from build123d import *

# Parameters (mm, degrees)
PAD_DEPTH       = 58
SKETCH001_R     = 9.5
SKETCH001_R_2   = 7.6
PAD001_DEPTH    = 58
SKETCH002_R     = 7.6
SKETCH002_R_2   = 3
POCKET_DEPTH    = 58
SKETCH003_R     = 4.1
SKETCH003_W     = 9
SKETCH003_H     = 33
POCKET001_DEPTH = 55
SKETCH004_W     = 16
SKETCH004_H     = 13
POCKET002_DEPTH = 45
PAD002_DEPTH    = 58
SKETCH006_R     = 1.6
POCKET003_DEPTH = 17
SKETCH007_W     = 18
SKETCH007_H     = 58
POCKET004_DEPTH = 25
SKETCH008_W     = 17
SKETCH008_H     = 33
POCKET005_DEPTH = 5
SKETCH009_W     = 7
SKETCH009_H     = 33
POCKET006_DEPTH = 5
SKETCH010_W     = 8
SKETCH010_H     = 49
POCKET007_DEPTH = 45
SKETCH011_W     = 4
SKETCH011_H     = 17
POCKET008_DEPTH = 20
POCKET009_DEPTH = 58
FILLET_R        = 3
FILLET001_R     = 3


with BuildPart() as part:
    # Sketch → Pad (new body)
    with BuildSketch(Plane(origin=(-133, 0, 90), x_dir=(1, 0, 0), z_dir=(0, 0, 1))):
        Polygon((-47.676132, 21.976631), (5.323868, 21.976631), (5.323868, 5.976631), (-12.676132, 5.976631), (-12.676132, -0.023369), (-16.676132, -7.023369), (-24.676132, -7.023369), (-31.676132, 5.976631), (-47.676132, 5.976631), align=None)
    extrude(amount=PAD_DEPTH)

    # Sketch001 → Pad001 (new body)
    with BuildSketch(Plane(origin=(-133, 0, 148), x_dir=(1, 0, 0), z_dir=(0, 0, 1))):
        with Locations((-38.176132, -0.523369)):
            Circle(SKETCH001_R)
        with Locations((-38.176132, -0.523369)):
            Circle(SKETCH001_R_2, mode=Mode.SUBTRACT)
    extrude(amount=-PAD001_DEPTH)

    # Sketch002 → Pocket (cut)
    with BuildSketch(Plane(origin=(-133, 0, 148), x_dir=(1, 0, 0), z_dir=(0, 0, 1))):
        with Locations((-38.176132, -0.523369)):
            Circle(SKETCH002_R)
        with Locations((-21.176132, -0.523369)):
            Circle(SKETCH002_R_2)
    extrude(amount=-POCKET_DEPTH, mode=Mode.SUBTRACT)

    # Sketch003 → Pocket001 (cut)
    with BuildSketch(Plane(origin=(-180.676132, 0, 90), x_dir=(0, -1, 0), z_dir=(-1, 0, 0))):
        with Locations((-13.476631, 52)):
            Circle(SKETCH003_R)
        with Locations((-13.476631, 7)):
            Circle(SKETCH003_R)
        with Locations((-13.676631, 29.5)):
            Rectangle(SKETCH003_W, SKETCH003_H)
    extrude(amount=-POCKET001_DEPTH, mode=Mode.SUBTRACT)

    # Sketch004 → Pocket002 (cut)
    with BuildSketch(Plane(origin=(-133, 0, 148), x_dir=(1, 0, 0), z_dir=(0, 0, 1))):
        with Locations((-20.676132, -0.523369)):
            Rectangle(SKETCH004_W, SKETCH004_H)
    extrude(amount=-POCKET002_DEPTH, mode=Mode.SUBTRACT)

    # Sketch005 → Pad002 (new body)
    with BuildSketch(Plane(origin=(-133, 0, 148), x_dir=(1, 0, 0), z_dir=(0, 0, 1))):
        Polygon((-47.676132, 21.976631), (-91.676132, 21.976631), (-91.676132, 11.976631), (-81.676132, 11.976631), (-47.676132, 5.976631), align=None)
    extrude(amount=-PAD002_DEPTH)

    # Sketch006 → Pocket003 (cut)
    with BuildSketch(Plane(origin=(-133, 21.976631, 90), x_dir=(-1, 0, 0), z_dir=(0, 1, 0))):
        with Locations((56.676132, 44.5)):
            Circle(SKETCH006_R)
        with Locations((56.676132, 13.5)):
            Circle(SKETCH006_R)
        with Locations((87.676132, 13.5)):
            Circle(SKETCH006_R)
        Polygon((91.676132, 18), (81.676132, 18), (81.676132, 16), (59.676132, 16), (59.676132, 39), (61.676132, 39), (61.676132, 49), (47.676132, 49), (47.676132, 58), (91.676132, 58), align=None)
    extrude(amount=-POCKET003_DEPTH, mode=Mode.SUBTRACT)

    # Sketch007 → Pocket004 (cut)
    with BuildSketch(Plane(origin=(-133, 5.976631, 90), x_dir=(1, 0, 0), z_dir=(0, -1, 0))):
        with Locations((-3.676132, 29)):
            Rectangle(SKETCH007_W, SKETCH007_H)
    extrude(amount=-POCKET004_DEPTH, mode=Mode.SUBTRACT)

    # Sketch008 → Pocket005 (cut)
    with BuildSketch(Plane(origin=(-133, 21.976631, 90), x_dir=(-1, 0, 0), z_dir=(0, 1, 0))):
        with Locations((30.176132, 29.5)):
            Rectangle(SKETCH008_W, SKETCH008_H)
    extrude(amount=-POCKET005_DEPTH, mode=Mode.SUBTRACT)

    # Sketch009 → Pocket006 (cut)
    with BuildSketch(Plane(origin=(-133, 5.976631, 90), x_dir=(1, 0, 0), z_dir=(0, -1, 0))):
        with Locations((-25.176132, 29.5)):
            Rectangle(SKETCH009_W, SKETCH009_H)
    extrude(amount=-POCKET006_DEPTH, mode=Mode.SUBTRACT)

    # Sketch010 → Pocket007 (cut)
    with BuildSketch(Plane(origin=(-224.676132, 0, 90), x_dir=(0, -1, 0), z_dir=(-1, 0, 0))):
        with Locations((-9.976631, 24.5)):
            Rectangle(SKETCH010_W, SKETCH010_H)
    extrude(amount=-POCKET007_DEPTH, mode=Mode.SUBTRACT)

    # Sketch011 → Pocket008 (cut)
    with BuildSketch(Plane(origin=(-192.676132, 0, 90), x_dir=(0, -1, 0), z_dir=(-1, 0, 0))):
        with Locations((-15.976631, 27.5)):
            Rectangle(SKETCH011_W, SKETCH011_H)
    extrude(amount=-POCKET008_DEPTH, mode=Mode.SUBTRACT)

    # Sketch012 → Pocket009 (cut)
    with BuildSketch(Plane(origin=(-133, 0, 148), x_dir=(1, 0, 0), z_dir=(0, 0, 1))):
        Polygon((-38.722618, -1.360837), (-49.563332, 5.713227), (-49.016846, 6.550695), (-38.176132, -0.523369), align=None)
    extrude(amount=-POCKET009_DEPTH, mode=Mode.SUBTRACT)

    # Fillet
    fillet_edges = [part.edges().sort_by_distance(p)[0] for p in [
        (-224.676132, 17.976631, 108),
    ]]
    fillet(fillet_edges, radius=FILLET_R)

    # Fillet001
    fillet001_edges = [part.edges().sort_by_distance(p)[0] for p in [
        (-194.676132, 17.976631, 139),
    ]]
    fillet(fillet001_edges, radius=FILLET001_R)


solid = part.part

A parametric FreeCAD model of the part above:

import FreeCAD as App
import Part
import Sketcher

V = App.Vector
Q = App.Units.Quantity


def edges_at(feature, points):
    """Names of the edges that pass closest to the given points."""
    edges = feature.Shape.Edges
    near = lambda p: min(range(len(edges)), key=lambda i: edges[i].distToShape(Part.Vertex(*p))[0])
    return sorted({f"Edge{near(p) + 1}" for p in points})


def add_polygon(sketch, points):
    """Adds a closed chain of lines whose ends are joined by coincident constraints."""
    first, n = sketch.GeometryCount, len(points)
    for a, b in zip(points, points[1:] + points[:1]):
        sketch.addGeometry(Part.LineSegment(App.Vector(*a, 0), App.Vector(*b, 0)), False)
    for i in range(n):
        sketch.addConstraint(Sketcher.Constraint("Coincident", first + i, 2, first + (i + 1) % n, 1))

doc = App.newDocument("Part")
body = doc.addObject("PartDesign::Body", "Body")

# Sketch on XY plane
sketch1 = body.newObject("Sketcher::SketchObject", "Sketch")
sketch1.AttachmentSupport = (doc.getObject("XY_Plane"), [""])
sketch1.MapMode = "FlatFace"
sketch1.AttachmentOffset = App.Placement(V(0, 0, 90), App.Rotation())
add_polygon(sketch1, [(-127.676132, 21.976631), (-180.676132, 21.976631), (-180.676132, 5.976631), (-164.676132, 5.976631), (-157.676132, -7.023369), (-149.676132, -7.023369), (-145.676132, -0.023369), (-145.676132, 5.976631), (-127.676132, 5.976631)])  # lines 0-8
sketch1.addConstraint([
    Sketcher.Constraint("Horizontal", 0),
    Sketcher.Constraint("Vertical", 1),
    Sketcher.Constraint("Horizontal", 2),
    Sketcher.Constraint("Horizontal", 4),
    Sketcher.Constraint("Vertical", 6),
    Sketcher.Constraint("Horizontal", 7),
    Sketcher.Constraint("Vertical", 8),
    Sketcher.Constraint("Horizontal", 2, 2, 6, 2),
    Sketcher.Constraint("Equal", 2, 1),
    Sketcher.Constraint("DistanceX", 0, 2, 0, 1, Q("53 mm")),
    Sketcher.Constraint("DistanceX", 2, 1, 2, 2, Q("16 mm")),
    Sketcher.Constraint("DistanceX", 4, 1, 4, 2, Q("8 mm")),
    Sketcher.Constraint("DistanceX", 7, 1, 7, 2, Q("18 mm")),
    Sketcher.Constraint("DistanceY", 6, 1, 6, 2, Q("6 mm")),
    Sketcher.Constraint("DistanceX", 2, 2, 3, 2, Q("7 mm")),
    Sketcher.Constraint("DistanceY", 3, 2, 2, 2, Q("13 mm")),
    Sketcher.Constraint("DistanceX", 0, 2, -1, 1, Q("180.676132 mm")),
    Sketcher.Constraint("DistanceY", -1, 1, 0, 2, Q("21.976631 mm")),
])
pad1 = body.newObject("PartDesign::Pad", "Pad")
pad1.Profile = sketch1
pad1.Length = 58

# Sketch on XY plane
sketch2 = body.newObject("Sketcher::SketchObject", "Sketch001")
sketch2.AttachmentSupport = (doc.getObject("XY_Plane"), [""])
sketch2.MapMode = "FlatFace"
sketch2.AttachmentOffset = App.Placement(V(0, 0, 148), App.Rotation())
sketch2.addGeometry([
    Part.Circle(V(-171.176132, -0.523369, 0), V(0, 0, 1), 9.5),
    Part.Circle(V(-171.176132, -0.523369, 0), V(0, 0, 1), 7.6),
], False)
sketch2.addConstraint([
    Sketcher.Constraint("Coincident", 1, 3, 0, 3),
    Sketcher.Constraint("Diameter", 0, Q("19 mm")),
    Sketcher.Constraint("Diameter", 1, Q("15.2 mm")),
    Sketcher.Constraint("DistanceX", 0, 3, -1, 1, Q("171.176132 mm")),
    Sketcher.Constraint("DistanceY", 0, 3, -1, 1, Q("0.523369 mm")),
])
pad2 = body.newObject("PartDesign::Pad", "Pad001")
pad2.Profile = sketch2
pad2.Length = 58
pad2.Reversed = True

# Sketch on XY plane
sketch3 = body.newObject("Sketcher::SketchObject", "Sketch002")
sketch3.AttachmentSupport = (doc.getObject("XY_Plane"), [""])
sketch3.MapMode = "FlatFace"
sketch3.AttachmentOffset = App.Placement(V(0, 0, 148), App.Rotation())
sketch3.addGeometry([
    Part.Circle(V(-171.176132, -0.523369, 0), V(0, 0, 1), 7.6),
    Part.Circle(V(-154.176132, -0.523369, 0), V(0, 0, 1), 3),
], False)
sketch3.addConstraint([
    Sketcher.Constraint("Horizontal", 0, 3, 1, 3),
    Sketcher.Constraint("Diameter", 1, Q("6 mm")),
    Sketcher.Constraint("Diameter", 0, Q("15.2 mm")),
    Sketcher.Constraint("DistanceX", 0, 3, 1, 3, Q("17 mm")),
    Sketcher.Constraint("DistanceX", 0, 3, -1, 1, Q("171.176132 mm")),
    Sketcher.Constraint("DistanceY", 0, 3, -1, 1, Q("0.523369 mm")),
])
pocket1 = body.newObject("PartDesign::Pocket", "Pocket")
pocket1.Profile = sketch3
pocket1.Length = 58

# Sketch on YZ plane
sketch4 = body.newObject("Sketcher::SketchObject", "Sketch003")
sketch4.AttachmentSupport = (doc.getObject("YZ_Plane"), [""])
sketch4.MapMode = "FlatFace"
sketch4.AttachmentOffset = App.Placement(V(0, 0, -180.676132), App.Rotation())
sketch4.addGeometry(Part.Circle(V(13.476631, 142, 0), V(0, 0, 1), 4.1), False)  # 0
sketch4.addGeometry(Part.Circle(V(13.476631, 97, 0), V(0, 0, 1), 4.1), False)  # 1
add_polygon(sketch4, [(18.176631, 136), (18.176631, 103), (9.176631, 103), (9.176631, 136)])  # lines 2-5
sketch4.addConstraint([
    Sketcher.Constraint("Vertical", 2),
    Sketcher.Constraint("Horizontal", 3),
    Sketcher.Constraint("Vertical", 4),
    Sketcher.Constraint("Horizontal", 5),
    Sketcher.Constraint("Equal", 0, 1),
    Sketcher.Constraint("Vertical", 0, 3, 1, 3),
    Sketcher.Constraint("Diameter", 0, Q("8.2 mm")),
    Sketcher.Constraint("DistanceX", 3, 2, 3, 1, Q("9 mm")),
    Sketcher.Constraint("DistanceY", 2, 2, 2, 1, Q("33 mm")),
    Sketcher.Constraint("DistanceY", -1, 1, 0, 3, Q("142 mm")),
    Sketcher.Constraint("DistanceY", -1, 1, 1, 3, Q("97 mm")),
    Sketcher.Constraint("DistanceY", -1, 1, 2, 2, Q("103 mm")),
    Sketcher.Constraint("DistanceX", 1, 3, 2, 2, Q("4.7 mm")),
    Sketcher.Constraint("DistanceX", -1, 1, 0, 3, Q("13.476631 mm")),
])
pocket2 = body.newObject("PartDesign::Pocket", "Pocket001")
pocket2.Profile = sketch4
pocket2.Length = 55
pocket2.Reversed = True

# Sketch on XY plane
sketch5 = body.newObject("Sketcher::SketchObject", "Sketch004")
sketch5.AttachmentSupport = (doc.getObject("XY_Plane"), [""])
sketch5.MapMode = "FlatFace"
sketch5.AttachmentOffset = App.Placement(V(0, 0, 148), App.Rotation())
add_polygon(sketch5, [(-161.676132, 5.976631), (-161.676132, -7.023369), (-145.676132, -7.023369), (-145.676132, 5.976631)])  # lines 0-3
sketch5.addConstraint([
    Sketcher.Constraint("Vertical", 0),
    Sketcher.Constraint("Horizontal", 1),
    Sketcher.Constraint("Vertical", 2),
    Sketcher.Constraint("Horizontal", 3),
    Sketcher.Constraint("DistanceX", 1, 1, 1, 2, Q("16 mm")),
    Sketcher.Constraint("DistanceY", 0, 2, 0, 1, Q("13 mm")),
    Sketcher.Constraint("DistanceX", 0, 2, -1, 1, Q("161.676132 mm")),
    Sketcher.Constraint("DistanceY", 0, 2, -1, 1, Q("7.023369 mm")),
])
pocket3 = body.newObject("PartDesign::Pocket", "Pocket002")
pocket3.Profile = sketch5
pocket3.Length = 45

# Sketch on XY plane
sketch6 = body.newObject("Sketcher::SketchObject", "Sketch005")
sketch6.AttachmentSupport = (doc.getObject("XY_Plane"), [""])
sketch6.MapMode = "FlatFace"
sketch6.AttachmentOffset = App.Placement(V(0, 0, 148), App.Rotation())
add_polygon(sketch6, [(-180.676132, 21.976631), (-224.676132, 21.976631), (-224.676132, 11.976631), (-214.676132, 11.976631), (-180.676132, 5.976631)])  # lines 0-4
sketch6.addConstraint([
    Sketcher.Constraint("Horizontal", 0),
    Sketcher.Constraint("Vertical", 1),
    Sketcher.Constraint("Horizontal", 2),
    Sketcher.Constraint("Vertical", 4),
    Sketcher.Constraint("Equal", 2, 1),
    Sketcher.Constraint("DistanceX", 0, 2, 0, 1, Q("44 mm")),
    Sketcher.Constraint("DistanceX", 2, 1, 2, 2, Q("10 mm")),
    Sketcher.Constraint("DistanceY", 4, 1, 4, 2, Q("16 mm")),
    Sketcher.Constraint("DistanceX", 0, 2, -1, 1, Q("224.676132 mm")),
    Sketcher.Constraint("DistanceY", -1, 1, 0, 2, Q("21.976631 mm")),
])
pad3 = body.newObject("PartDesign::Pad", "Pad002")
pad3.Profile = sketch6
pad3.Length = 58
pad3.Reversed = True

# Sketch on XZ plane
sketch7 = body.newObject("Sketcher::SketchObject", "Sketch006")
sketch7.AttachmentSupport = (doc.getObject("XZ_Plane"), [""])
sketch7.MapMode = "FlatFace"
sketch7.AttachmentOffset = App.Placement(V(0, 0, -21.976631), App.Rotation())
sketch7.addGeometry(Part.Circle(V(-189.676132, 134.5, 0), V(0, 0, 1), 1.6), False)  # 0
sketch7.addGeometry(Part.Circle(V(-189.676132, 103.5, 0), V(0, 0, 1), 1.6), False)  # 1
sketch7.addGeometry(Part.Circle(V(-220.676132, 103.5, 0), V(0, 0, 1), 1.6), False)  # 2
add_polygon(sketch7, [(-214.676132, 108), (-224.676132, 108), (-224.676132, 148), (-180.676132, 148), (-180.676132, 139), (-194.676132, 139), (-194.676132, 129), (-192.676132, 129), (-192.676132, 106), (-214.676132, 106)])  # lines 3-12
sketch7.addConstraint([
    Sketcher.Constraint("Horizontal", 3),
    Sketcher.Constraint("Vertical", 4),
    Sketcher.Constraint("Horizontal", 5),
    Sketcher.Constraint("Vertical", 6),
    Sketcher.Constraint("Horizontal", 7),
    Sketcher.Constraint("Vertical", 8),
    Sketcher.Constraint("Horizontal", 9),
    Sketcher.Constraint("Vertical", 10),
    Sketcher.Constraint("Horizontal", 11),
    Sketcher.Constraint("Vertical", 12),
    Sketcher.Constraint("Equal", 0, 1),
    Sketcher.Constraint("Equal", 1, 2),
    Sketcher.Constraint("Horizontal", 1, 3, 2, 3),
    Sketcher.Constraint("Vertical", 0, 3, 1, 3),
    Sketcher.Constraint("Equal", 3, 8),
    Sketcher.Constraint("Equal", 9, 12),
    Sketcher.Constraint("Diameter", 0, Q("3.2 mm")),
    Sketcher.Constraint("DistanceX", 3, 2, 3, 1, Q("10 mm")),
    Sketcher.Constraint("DistanceX", 5, 1, 5, 2, Q("44 mm")),
    Sketcher.Constraint("DistanceX", 7, 2, 7, 1, Q("14 mm")),
    Sketcher.Constraint("DistanceX", 9, 1, 9, 2, Q("2 mm")),
    Sketcher.Constraint("DistanceY", 4, 1, 4, 2, Q("40 mm")),
    Sketcher.Constraint("DistanceY", 6, 2, 6, 1, Q("9 mm")),
    Sketcher.Constraint("DistanceY", -1, 1, 3, 2, Q("108 mm")),
    Sketcher.Constraint("DistanceY", 1, 3, 0, 3, Q("31 mm")),
    Sketcher.Constraint("DistanceX", 2, 3, 1, 3, Q("31 mm")),
    Sketcher.Constraint("DistanceX", 3, 2, 2, 3, Q("4 mm")),
    Sketcher.Constraint("DistanceY", -1, 1, 0, 3, Q("134.5 mm")),
    Sketcher.Constraint("DistanceX", 0, 3, -1, 1, Q("189.676132 mm")),
])
pocket4 = body.newObject("PartDesign::Pocket", "Pocket003")
pocket4.Profile = sketch7
pocket4.Length = 17
pocket4.Reversed = True

# Sketch on XZ plane
sketch8 = body.newObject("Sketcher::SketchObject", "Sketch007")
sketch8.AttachmentSupport = (doc.getObject("XZ_Plane"), [""])
sketch8.MapMode = "FlatFace"
sketch8.AttachmentOffset = App.Placement(V(0, 0, -5.976631), App.Rotation())
add_polygon(sketch8, [(-145.676132, 148), (-145.676132, 90), (-127.676132, 90), (-127.676132, 148)])  # lines 0-3
sketch8.addConstraint([
    Sketcher.Constraint("Vertical", 0),
    Sketcher.Constraint("Horizontal", 1),
    Sketcher.Constraint("Vertical", 2),
    Sketcher.Constraint("Horizontal", 3),
    Sketcher.Constraint("DistanceX", 1, 1, 1, 2, Q("18 mm")),
    Sketcher.Constraint("DistanceY", 0, 2, 0, 1, Q("58 mm")),
    Sketcher.Constraint("DistanceY", -1, 1, 0, 2, Q("90 mm")),
    Sketcher.Constraint("DistanceX", 0, 2, -1, 1, Q("145.676132 mm")),
])
pocket5 = body.newObject("PartDesign::Pocket", "Pocket004")
pocket5.Profile = sketch8
pocket5.Length = 25

# Sketch on XZ plane
sketch9 = body.newObject("Sketcher::SketchObject", "Sketch008")
sketch9.AttachmentSupport = (doc.getObject("XZ_Plane"), [""])
sketch9.MapMode = "FlatFace"
sketch9.AttachmentOffset = App.Placement(V(0, 0, -21.976631), App.Rotation())
add_polygon(sketch9, [(-154.676132, 136), (-154.676132, 103), (-171.676132, 103), (-171.676132, 136)])  # lines 0-3
sketch9.addConstraint([
    Sketcher.Constraint("Vertical", 0),
    Sketcher.Constraint("Horizontal", 1),
    Sketcher.Constraint("Vertical", 2),
    Sketcher.Constraint("Horizontal", 3),
    Sketcher.Constraint("DistanceX", 1, 2, 1, 1, Q("17 mm")),
    Sketcher.Constraint("DistanceY", 0, 2, 0, 1, Q("33 mm")),
    Sketcher.Constraint("DistanceY", -1, 1, 0, 2, Q("103 mm")),
    Sketcher.Constraint("DistanceX", 0, 2, -1, 1, Q("154.676132 mm")),
])
pocket6 = body.newObject("PartDesign::Pocket", "Pocket005")
pocket6.Profile = sketch9
pocket6.Length = 5
pocket6.Reversed = True

# Sketch on XZ plane
sketch10 = body.newObject("Sketcher::SketchObject", "Sketch009")
sketch10.AttachmentSupport = (doc.getObject("XZ_Plane"), [""])
sketch10.MapMode = "FlatFace"
sketch10.AttachmentOffset = App.Placement(V(0, 0, -5.976631), App.Rotation())
add_polygon(sketch10, [(-161.676132, 136), (-161.676132, 103), (-154.676132, 103), (-154.676132, 136)])  # lines 0-3
sketch10.addConstraint([
    Sketcher.Constraint("Vertical", 0),
    Sketcher.Constraint("Horizontal", 1),
    Sketcher.Constraint("Vertical", 2),
    Sketcher.Constraint("Horizontal", 3),
    Sketcher.Constraint("DistanceX", 1, 1, 1, 2, Q("7 mm")),
    Sketcher.Constraint("DistanceY", 0, 2, 0, 1, Q("33 mm")),
    Sketcher.Constraint("DistanceY", -1, 1, 0, 2, Q("103 mm")),
    Sketcher.Constraint("DistanceX", 0, 2, -1, 1, Q("161.676132 mm")),
])
pocket7 = body.newObject("PartDesign::Pocket", "Pocket006")
pocket7.Profile = sketch10
pocket7.Length = 5

# Sketch on YZ plane
sketch11 = body.newObject("Sketcher::SketchObject", "Sketch010")
sketch11.AttachmentSupport = (doc.getObject("YZ_Plane"), [""])
sketch11.MapMode = "FlatFace"
sketch11.AttachmentOffset = App.Placement(V(0, 0, -224.676132), App.Rotation())
add_polygon(sketch11, [(13.976631, 139), (13.976631, 90), (5.976631, 90), (5.976631, 139)])  # lines 0-3
sketch11.addConstraint([
    Sketcher.Constraint("Vertical", 0),
    Sketcher.Constraint("Horizontal", 1),
    Sketcher.Constraint("Vertical", 2),
    Sketcher.Constraint("Horizontal", 3),
    Sketcher.Constraint("DistanceX", 1, 2, 1, 1, Q("8 mm")),
    Sketcher.Constraint("DistanceY", 0, 2, 0, 1, Q("49 mm")),
    Sketcher.Constraint("DistanceY", -1, 1, 0, 2, Q("90 mm")),
    Sketcher.Constraint("DistanceX", -1, 1, 0, 2, Q("13.976631 mm")),
])
pocket8 = body.newObject("PartDesign::Pocket", "Pocket007")
pocket8.Profile = sketch11
pocket8.Length = 45
pocket8.Reversed = True

# Sketch on YZ plane
sketch12 = body.newObject("Sketcher::SketchObject", "Sketch011")
sketch12.AttachmentSupport = (doc.getObject("YZ_Plane"), [""])
sketch12.MapMode = "FlatFace"
sketch12.AttachmentOffset = App.Placement(V(0, 0, -192.676132), App.Rotation())
add_polygon(sketch12, [(17.976631, 126), (17.976631, 109), (13.976631, 109), (13.976631, 126)])  # lines 0-3
sketch12.addConstraint([
    Sketcher.Constraint("Vertical", 0),
    Sketcher.Constraint("Horizontal", 1),
    Sketcher.Constraint("Vertical", 2),
    Sketcher.Constraint("Horizontal", 3),
    Sketcher.Constraint("DistanceX", 1, 2, 1, 1, Q("4 mm")),
    Sketcher.Constraint("DistanceY", 0, 2, 0, 1, Q("17 mm")),
    Sketcher.Constraint("DistanceY", -1, 1, 0, 2, Q("109 mm")),
    Sketcher.Constraint("DistanceX", -1, 1, 0, 2, Q("17.976631 mm")),
])
pocket9 = body.newObject("PartDesign::Pocket", "Pocket008")
pocket9.Profile = sketch12
pocket9.Length = 20
pocket9.Reversed = True

# Sketch on XY plane
sketch13 = body.newObject("Sketcher::SketchObject", "Sketch012")
sketch13.AttachmentSupport = (doc.getObject("XY_Plane"), [""])
sketch13.MapMode = "FlatFace"
sketch13.AttachmentOffset = App.Placement(V(0, 0, 148), App.Rotation())
add_polygon(sketch13, [(-182.563332, 5.713227), (-171.722618, -1.360837), (-171.176132, -0.523369), (-182.016846, 6.550695)])  # lines 0-3
sketch13.addConstraint([
    Sketcher.Constraint("Perpendicular", 0, 1),
    Sketcher.Constraint("Perpendicular", 1, 2),
    Sketcher.Constraint("Perpendicular", 2, 3),
    Sketcher.Constraint("Distance", 1, Q("1 mm")),
    Sketcher.Constraint("DistanceX", 3, 2, 1, 2, Q("11.3872 mm")),
    Sketcher.Constraint("Distance", 0, Q("12.944631 mm")),
    Sketcher.Constraint("DistanceX", 0, 2, -1, 1, Q("171.722618 mm")),
    Sketcher.Constraint("DistanceY", 1, 2, -1, 1, Q("0.523369 mm")),
])
pocket10 = body.newObject("PartDesign::Pocket", "Pocket009")
pocket10.Profile = sketch13
pocket10.Length = 58
doc.recompute()

fillet = body.newObject("PartDesign::Fillet", "Fillet")
fillet.Base = (pocket10, edges_at(pocket10, [(-224.676, 17.977, 108)]))
fillet.Radius = 3
doc.recompute()

fillet2 = body.newObject("PartDesign::Fillet", "Fillet001")
fillet2.Base = (fillet, edges_at(fillet, [(-194.676, 17.977, 139)]))
fillet2.Radius = 3

doc.recompute()
